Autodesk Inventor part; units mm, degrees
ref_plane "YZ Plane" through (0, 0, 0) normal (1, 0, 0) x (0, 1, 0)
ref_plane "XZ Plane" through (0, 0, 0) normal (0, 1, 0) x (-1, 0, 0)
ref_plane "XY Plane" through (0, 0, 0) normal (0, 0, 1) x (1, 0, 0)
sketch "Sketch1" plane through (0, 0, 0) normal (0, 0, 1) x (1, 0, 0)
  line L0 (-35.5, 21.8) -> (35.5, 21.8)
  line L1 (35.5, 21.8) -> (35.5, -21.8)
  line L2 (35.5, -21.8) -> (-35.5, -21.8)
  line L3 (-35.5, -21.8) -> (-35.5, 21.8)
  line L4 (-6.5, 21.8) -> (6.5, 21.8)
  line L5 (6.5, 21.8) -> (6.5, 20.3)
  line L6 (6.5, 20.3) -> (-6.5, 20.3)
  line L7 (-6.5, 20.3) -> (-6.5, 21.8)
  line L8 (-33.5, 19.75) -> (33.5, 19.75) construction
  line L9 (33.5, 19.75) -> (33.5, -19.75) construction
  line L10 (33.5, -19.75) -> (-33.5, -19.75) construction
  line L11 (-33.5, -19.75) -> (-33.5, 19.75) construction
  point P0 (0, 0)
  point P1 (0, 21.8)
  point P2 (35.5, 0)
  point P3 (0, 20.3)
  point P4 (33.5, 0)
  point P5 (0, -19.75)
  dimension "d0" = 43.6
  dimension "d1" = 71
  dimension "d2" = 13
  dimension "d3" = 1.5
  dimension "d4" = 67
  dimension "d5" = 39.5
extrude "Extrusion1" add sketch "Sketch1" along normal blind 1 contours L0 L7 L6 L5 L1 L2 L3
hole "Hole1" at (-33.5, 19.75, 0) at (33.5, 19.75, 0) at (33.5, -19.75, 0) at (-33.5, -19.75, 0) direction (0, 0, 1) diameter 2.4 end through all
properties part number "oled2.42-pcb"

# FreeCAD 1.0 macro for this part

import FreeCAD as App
import Part
import Sketcher
Q = App.Units.Quantity

doc = App.newDocument("Part")
body = doc.addObject("PartDesign::Body", "Body")

# Sketch on XY plane
sketch1 = body.newObject("Sketcher::SketchObject", "Sketch")
sketch1.AttachmentSupport = (doc.getObject("XY_Plane"), [""])
sketch1.MapMode = "FlatFace"
sketch1.addGeometry(Part.LineSegment(App.Vector(-6.5, 21.8, 0), App.Vector(-35.5, 21.8, 0)), False)
sketch1.addGeometry(Part.LineSegment(App.Vector(-35.5, 21.8, 0), App.Vector(-35.5, -21.8, 0)), False)
sketch1.addGeometry(Part.LineSegment(App.Vector(-35.5, -21.8, 0), App.Vector(35.5, -21.8, 0)), False)
sketch1.addGeometry(Part.LineSegment(App.Vector(35.5, -21.8, 0), App.Vector(35.5, 21.8, 0)), False)
sketch1.addGeometry(Part.LineSegment(App.Vector(35.5, 21.8, 0), App.Vector(6.5, 21.8, 0)), False)
sketch1.addGeometry(Part.LineSegment(App.Vector(6.5, 21.8, 0), App.Vector(6.5, 20.3, 0)), False)
sketch1.addGeometry(Part.LineSegment(App.Vector(6.5, 20.3, 0), App.Vector(-6.5, 20.3, 0)), False)
sketch1.addGeometry(Part.LineSegment(App.Vector(-6.5, 20.3, 0), App.Vector(-6.5, 21.8, 0)), False)
sketch1.addConstraint(Sketcher.Constraint("Coincident", 0, 2, 1, 1))
sketch1.addConstraint(Sketcher.Constraint("Coincident", 1, 2, 2, 1))
sketch1.addConstraint(Sketcher.Constraint("Coincident", 2, 2, 3, 1))
sketch1.addConstraint(Sketcher.Constraint("Coincident", 3, 2, 4, 1))
sketch1.addConstraint(Sketcher.Constraint("Coincident", 4, 2, 5, 1))
sketch1.addConstraint(Sketcher.Constraint("Coincident", 5, 2, 6, 1))
sketch1.addConstraint(Sketcher.Constraint("Coincident", 6, 2, 7, 1))
sketch1.addConstraint(Sketcher.Constraint("Coincident", 7, 2, 0, 1))
sketch1.addConstraint(Sketcher.Constraint("Horizontal", 0))
sketch1.addConstraint(Sketcher.Constraint("Vertical", 1))
sketch1.addConstraint(Sketcher.Constraint("Horizontal", 2))
sketch1.addConstraint(Sketcher.Constraint("Vertical", 3))
sketch1.addConstraint(Sketcher.Constraint("Horizontal", 4))
sketch1.addConstraint(Sketcher.Constraint("Vertical", 5))
sketch1.addConstraint(Sketcher.Constraint("Horizontal", 6))
sketch1.addConstraint(Sketcher.Constraint("Vertical", 7))
sketch1.addConstraint(Sketcher.Constraint("Symmetric", 0, 2, 2, 2, -1, 1))
sketch1.addConstraint(Sketcher.Constraint("Symmetric", 4, 2, 7, 2, -2))
sketch1.addConstraint(Sketcher.Constraint("DistanceX", 2, 1, 2, 2, Q("71 mm")))
sketch1.addConstraint(Sketcher.Constraint("DistanceX", 6, 2, 6, 1, Q("13 mm")))
sketch1.addConstraint(Sketcher.Constraint("DistanceY", 1, 2, 1, 1, Q("43.6 mm")))
sketch1.addConstraint(Sketcher.Constraint("DistanceY", 5, 2, 5, 1, Q("1.5 mm")))
pad1 = body.newObject("PartDesign::Pad", "Pad")
pad1.Profile = sketch1
pad1.Length = 1

# Sketch on XY plane
sketch2 = body.newObject("Sketcher::SketchObject", "Sketch001")
sketch2.AttachmentSupport = (doc.getObject("XY_Plane"), [""])
sketch2.MapMode = "FlatFace"
sketch2.addGeometry(Part.Circle(App.Vector(-33.5, 19.75, 0), App.Vector(0, 0, 1), 1.2), False)
sketch2.addGeometry(Part.Circle(App.Vector(33.5, 19.75, 0), App.Vector(0, 0, 1), 1.2), False)
sketch2.addGeometry(Part.Circle(App.Vector(33.5, -19.75, 0), App.Vector(0, 0, 1), 1.2), False)
sketch2.addGeometry(Part.Circle(App.Vector(-33.5, -19.75, 0), App.Vector(0, 0, 1), 1.2), False)
sketch2.addConstraint(Sketcher.Constraint("Equal", 0, 1))
sketch2.addConstraint(Sketcher.Constraint("Equal", 1, 2))
sketch2.addConstraint(Sketcher.Constraint("Equal", 2, 3))
sketch2.addConstraint(Sketcher.Constraint("Symmetric", 0, 3, 2, 3, -1, 1))
sketch2.addConstraint(Sketcher.Constraint("Symmetric", 1, 3, 3, 3, -1, 1))
sketch2.addConstraint(Sketcher.Constraint("Symmetric", 0, 3, 1, 3, -2))
sketch2.addConstraint(Sketcher.Constraint("Diameter", 0, Q("2.4 mm")))
sketch2.addConstraint(Sketcher.Constraint("DistanceX", 0, 3, 1, 3, Q("67 mm")))
sketch2.addConstraint(Sketcher.Constraint("DistanceY", 2, 3, 1, 3, Q("39.5 mm")))
doc.recompute()
hole = body.newObject("PartDesign::Hole", "Hole")
hole.Profile = sketch2
hole.ThreadType = "None"
hole.Diameter = 2.4
hole.DepthType = "ThroughAll"
hole.Reversed = True

doc.recompute()
